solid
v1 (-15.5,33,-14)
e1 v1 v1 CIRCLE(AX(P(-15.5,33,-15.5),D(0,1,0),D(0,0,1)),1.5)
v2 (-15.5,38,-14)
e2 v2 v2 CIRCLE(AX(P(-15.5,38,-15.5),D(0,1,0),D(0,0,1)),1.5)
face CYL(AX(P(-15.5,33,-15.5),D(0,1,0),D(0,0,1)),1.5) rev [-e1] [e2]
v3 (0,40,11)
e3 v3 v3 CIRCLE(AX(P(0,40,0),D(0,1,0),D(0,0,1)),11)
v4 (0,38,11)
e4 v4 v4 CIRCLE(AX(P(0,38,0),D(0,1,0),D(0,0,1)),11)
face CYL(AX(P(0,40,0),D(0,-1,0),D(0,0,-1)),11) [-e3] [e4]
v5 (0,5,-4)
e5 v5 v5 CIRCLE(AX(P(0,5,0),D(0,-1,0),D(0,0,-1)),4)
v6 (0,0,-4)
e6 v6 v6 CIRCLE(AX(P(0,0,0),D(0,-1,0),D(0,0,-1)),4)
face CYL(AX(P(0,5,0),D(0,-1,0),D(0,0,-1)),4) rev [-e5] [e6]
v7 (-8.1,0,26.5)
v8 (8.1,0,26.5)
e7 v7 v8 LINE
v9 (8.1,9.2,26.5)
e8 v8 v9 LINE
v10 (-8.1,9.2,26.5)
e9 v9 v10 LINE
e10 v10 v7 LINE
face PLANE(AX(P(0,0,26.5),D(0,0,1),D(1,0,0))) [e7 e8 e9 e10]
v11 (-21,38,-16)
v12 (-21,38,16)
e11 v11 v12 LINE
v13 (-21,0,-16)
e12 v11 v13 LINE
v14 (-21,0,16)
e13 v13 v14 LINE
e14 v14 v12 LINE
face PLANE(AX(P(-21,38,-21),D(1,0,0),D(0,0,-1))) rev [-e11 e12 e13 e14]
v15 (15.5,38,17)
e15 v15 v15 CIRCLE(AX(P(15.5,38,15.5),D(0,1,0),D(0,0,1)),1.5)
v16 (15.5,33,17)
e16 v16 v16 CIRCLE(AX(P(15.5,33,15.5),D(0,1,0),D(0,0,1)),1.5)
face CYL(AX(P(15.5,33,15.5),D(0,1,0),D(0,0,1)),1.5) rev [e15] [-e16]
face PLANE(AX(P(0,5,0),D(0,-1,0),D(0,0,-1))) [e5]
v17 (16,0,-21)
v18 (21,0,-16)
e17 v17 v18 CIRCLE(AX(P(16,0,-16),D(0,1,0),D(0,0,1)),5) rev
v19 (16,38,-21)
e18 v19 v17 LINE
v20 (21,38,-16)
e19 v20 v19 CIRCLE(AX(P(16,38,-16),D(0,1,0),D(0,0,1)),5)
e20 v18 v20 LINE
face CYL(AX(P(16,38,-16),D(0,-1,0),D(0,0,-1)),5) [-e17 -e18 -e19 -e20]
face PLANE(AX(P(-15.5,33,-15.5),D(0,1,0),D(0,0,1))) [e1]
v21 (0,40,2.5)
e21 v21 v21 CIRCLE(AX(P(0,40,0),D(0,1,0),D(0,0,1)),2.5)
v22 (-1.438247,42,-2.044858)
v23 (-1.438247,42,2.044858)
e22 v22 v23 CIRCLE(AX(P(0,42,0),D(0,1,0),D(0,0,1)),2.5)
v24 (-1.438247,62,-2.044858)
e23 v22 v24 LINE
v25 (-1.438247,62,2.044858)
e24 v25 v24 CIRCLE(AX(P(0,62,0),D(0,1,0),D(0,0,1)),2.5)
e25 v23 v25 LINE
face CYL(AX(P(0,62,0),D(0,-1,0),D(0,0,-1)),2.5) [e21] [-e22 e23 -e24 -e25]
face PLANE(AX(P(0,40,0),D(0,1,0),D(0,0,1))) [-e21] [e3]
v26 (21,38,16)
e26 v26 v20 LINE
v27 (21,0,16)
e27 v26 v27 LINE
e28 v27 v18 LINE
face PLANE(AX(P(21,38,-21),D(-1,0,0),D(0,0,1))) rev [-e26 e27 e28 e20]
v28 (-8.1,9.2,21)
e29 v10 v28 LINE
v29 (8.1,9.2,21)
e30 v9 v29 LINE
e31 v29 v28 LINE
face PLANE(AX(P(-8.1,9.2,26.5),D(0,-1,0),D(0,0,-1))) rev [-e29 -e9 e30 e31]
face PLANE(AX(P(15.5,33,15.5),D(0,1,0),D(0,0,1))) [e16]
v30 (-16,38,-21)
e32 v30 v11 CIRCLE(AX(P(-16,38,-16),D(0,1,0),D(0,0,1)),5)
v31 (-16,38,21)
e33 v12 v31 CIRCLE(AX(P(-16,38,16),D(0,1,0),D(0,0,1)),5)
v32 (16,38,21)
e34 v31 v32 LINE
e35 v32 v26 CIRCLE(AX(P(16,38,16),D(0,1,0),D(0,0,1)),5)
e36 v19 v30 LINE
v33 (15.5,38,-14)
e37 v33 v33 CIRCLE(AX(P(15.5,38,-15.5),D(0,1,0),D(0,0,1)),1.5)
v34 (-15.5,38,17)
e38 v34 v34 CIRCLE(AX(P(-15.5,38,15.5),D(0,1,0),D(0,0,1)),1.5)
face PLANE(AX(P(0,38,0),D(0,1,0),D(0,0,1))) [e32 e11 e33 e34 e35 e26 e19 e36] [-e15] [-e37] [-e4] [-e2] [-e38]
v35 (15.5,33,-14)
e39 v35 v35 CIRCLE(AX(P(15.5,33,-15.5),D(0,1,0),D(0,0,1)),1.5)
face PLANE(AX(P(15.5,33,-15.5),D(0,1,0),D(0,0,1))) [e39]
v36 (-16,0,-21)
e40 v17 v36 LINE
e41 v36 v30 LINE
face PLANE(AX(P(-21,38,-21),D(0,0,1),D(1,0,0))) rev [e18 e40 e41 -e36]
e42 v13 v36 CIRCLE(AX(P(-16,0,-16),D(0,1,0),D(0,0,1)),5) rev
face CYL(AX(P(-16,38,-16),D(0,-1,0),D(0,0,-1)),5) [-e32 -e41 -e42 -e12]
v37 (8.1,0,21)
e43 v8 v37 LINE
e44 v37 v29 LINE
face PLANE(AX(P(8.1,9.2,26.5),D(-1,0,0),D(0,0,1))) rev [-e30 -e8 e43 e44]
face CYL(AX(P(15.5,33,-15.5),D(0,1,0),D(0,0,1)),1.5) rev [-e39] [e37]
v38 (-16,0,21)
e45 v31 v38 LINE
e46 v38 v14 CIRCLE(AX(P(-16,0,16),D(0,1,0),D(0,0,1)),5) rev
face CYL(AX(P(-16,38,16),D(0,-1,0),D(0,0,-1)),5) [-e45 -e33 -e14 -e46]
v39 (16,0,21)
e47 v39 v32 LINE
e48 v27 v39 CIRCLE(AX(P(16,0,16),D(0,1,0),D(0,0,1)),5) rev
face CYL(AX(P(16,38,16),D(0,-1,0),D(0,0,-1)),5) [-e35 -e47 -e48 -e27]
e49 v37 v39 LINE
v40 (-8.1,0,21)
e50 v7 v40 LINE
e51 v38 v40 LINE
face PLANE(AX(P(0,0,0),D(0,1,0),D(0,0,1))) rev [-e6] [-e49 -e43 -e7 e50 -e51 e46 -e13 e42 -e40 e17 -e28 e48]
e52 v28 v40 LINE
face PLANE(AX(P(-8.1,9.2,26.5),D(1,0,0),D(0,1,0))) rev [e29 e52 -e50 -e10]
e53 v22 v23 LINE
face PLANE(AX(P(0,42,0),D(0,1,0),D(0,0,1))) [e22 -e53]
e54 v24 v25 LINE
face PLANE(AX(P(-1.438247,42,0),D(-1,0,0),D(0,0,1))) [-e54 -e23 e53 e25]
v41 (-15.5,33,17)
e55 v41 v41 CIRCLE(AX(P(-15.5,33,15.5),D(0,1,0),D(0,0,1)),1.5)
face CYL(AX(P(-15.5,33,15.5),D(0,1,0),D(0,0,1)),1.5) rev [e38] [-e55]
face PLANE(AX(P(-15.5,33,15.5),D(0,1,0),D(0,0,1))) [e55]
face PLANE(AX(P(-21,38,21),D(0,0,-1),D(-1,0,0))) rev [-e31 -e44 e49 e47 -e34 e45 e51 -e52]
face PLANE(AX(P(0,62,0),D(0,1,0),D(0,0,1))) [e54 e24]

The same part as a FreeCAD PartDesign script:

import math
import FreeCAD as App
import Part
import Sketcher
Q = App.Units.Quantity


def edges_at(feature, points):
    """Names of the edges that pass closest to the given points."""
    edges = feature.Shape.Edges
    near = lambda p: min(range(len(edges)), key=lambda i: edges[i].distToShape(Part.Vertex(*p))[0])
    return sorted({f"Edge{near(p) + 1}" for p in points})


def add_polygon(sketch, points):
    """Adds a closed chain of lines whose ends are joined by coincident constraints."""
    first, n = sketch.GeometryCount, len(points)
    for a, b in zip(points, points[1:] + points[:1]):
        sketch.addGeometry(Part.LineSegment(App.Vector(*a, 0), App.Vector(*b, 0)), False)
    for i in range(n):
        sketch.addConstraint(Sketcher.Constraint("Coincident", first + i, 2, first + (i + 1) % n, 1))

doc = App.newDocument("Part")
body = doc.addObject("PartDesign::Body", "Body")

# Sketch on XZ plane
sketch1 = doc.addObject("Sketcher::SketchObject", "Sketch")
body.addObject(sketch1)
sketch1.AttachmentSupport = (doc.XZ_Plane, [""])
sketch1.MapMode = "FlatFace"
add_polygon(sketch1, [(-21, -21), (-21, 21), (21, 21), (21, -21)])  # lines 0-3
sketch1.addConstraint(Sketcher.Constraint("Vertical", 0))
sketch1.addConstraint(Sketcher.Constraint("Horizontal", 1))
sketch1.addConstraint(Sketcher.Constraint("Vertical", 2))
sketch1.addConstraint(Sketcher.Constraint("Horizontal", 3))
sketch1.addConstraint(Sketcher.Constraint("Symmetric", 0, 2, 2, 2, -1, 1))
sketch1.addConstraint(Sketcher.Constraint("Equal", 3, 0))
sketch1.addConstraint(Sketcher.Constraint("DistanceX", 1, 1, 1, 2, Q("42 mm")))
pad1 = doc.addObject("PartDesign::Pad", "Pad")
body.addObject(pad1)
pad1.Profile = sketch1
pad1.Length = 38
pad1.Reversed = True

# Sketch on XZ plane
sketch2 = doc.addObject("Sketcher::SketchObject", "Sketch001")
body.addObject(sketch2)
sketch2.AttachmentSupport = (doc.XZ_Plane, [""])
sketch2.MapMode = "FlatFace"
sketch2.AttachmentOffset = App.Placement(App.Vector(0, 0, -38), App.Rotation())
sketch2.addGeometry(Part.Circle(App.Vector(0, 0, 0), App.Vector(0, 0, 1), 11), False)
sketch2.addConstraint(Sketcher.Constraint("Coincident", 0, 3, -1, 1))
sketch2.addConstraint(Sketcher.Constraint("Diameter", 0, Q("22 mm")))
pad2 = doc.addObject("PartDesign::Pad", "Pad001")
body.addObject(pad2)
pad2.Profile = sketch2
pad2.Length = 2
pad2.Reversed = True

# Sketch on XZ plane
sketch3 = doc.addObject("Sketcher::SketchObject", "Sketch002")
body.addObject(sketch3)
sketch3.AttachmentSupport = (doc.XZ_Plane, [""])
sketch3.MapMode = "FlatFace"
sketch3.AttachmentOffset = App.Placement(App.Vector(0, 0, -40), App.Rotation())
sketch3.addGeometry(Part.Circle(App.Vector(0, 0, 0), App.Vector(0, 0, 1), 2.5), False)
sketch3.addConstraint(Sketcher.Constraint("Coincident", 0, 3, -1, 1))
sketch3.addConstraint(Sketcher.Constraint("Diameter", 0, Q("5 mm")))
pad3 = doc.addObject("PartDesign::Pad", "Pad002")
body.addObject(pad3)
pad3.Profile = sketch3
pad3.Length = 22
pad3.Reversed = True

# Sketch on XY plane
sketch4 = doc.addObject("Sketcher::SketchObject", "Sketch003")
body.addObject(sketch4)
sketch4.AttachmentSupport = (doc.XY_Plane, [""])
sketch4.MapMode = "FlatFace"
sketch4.AttachmentOffset = App.Placement(App.Vector(0, 0, 21), App.Rotation())
add_polygon(sketch4, [(-8, 9), (-8, 0), (8, 0), (8, 9)])  # lines 0-3
sketch4.addConstraint(Sketcher.Constraint("Vertical", 0))
sketch4.addConstraint(Sketcher.Constraint("Horizontal", 1))
sketch4.addConstraint(Sketcher.Constraint("Vertical", 2))
sketch4.addConstraint(Sketcher.Constraint("Horizontal", 3))
sketch4.addConstraint(Sketcher.Constraint("Symmetric", 0, 2, 1, 2, -1, 1))
sketch4.addConstraint(Sketcher.Constraint("DistanceX", 1, 1, 1, 2, Q("16.2 mm")))
sketch4.addConstraint(Sketcher.Constraint("DistanceY", 0, 2, 0, 1, Q("9.2 mm")))
pad4 = doc.addObject("PartDesign::Pad", "Pad003")
body.addObject(pad4)
pad4.Profile = sketch4
pad4.Length = 5.5

# Sketch on XZ plane
sketch5 = doc.addObject("Sketcher::SketchObject", "Sketch004")
body.addObject(sketch5)
sketch5.AttachmentSupport = (doc.XZ_Plane, [""])
sketch5.MapMode = "FlatFace"
sketch5.AttachmentOffset = App.Placement(App.Vector(0, 0, -38), App.Rotation())
sketch5.addGeometry(Part.Circle(App.Vector(-15.5, -15.5, 0), App.Vector(0, 0, 1), 1.5), False)
sketch5.addGeometry(Part.Circle(App.Vector(15.5, -15.5, 0), App.Vector(0, 0, 1), 1.5), False)
sketch5.addGeometry(Part.Circle(App.Vector(15.5, 15.5, 0), App.Vector(0, 0, 1), 1.5), False)
sketch5.addGeometry(Part.Circle(App.Vector(-15.5, 15.5, 0), App.Vector(0, 0, 1), 1.5), False)
sketch5.addConstraint(Sketcher.Constraint("Equal", 0, 1))
sketch5.addConstraint(Sketcher.Constraint("Equal", 1, 2))
sketch5.addConstraint(Sketcher.Constraint("Equal", 2, 3))
sketch5.addConstraint(Sketcher.Constraint("Symmetric", 0, 3, 2, 3, -1, 1))
sketch5.addConstraint(Sketcher.Constraint("Symmetric", 1, 3, 3, 3, -1, 1))
sketch5.addConstraint(Sketcher.Constraint("Symmetric", 0, 3, 1, 3, -2))
sketch5.addConstraint(Sketcher.Constraint("Diameter", 0, Q("3 mm")))
sketch5.addConstraint(Sketcher.Constraint("DistanceX", 0, 3, 1, 3, Q("31 mm")))
sketch5.addConstraint(Sketcher.Constraint("DistanceY", 1, 3, 2, 3, Q("31 mm")))
pocket1 = doc.addObject("PartDesign::Pocket", "Pocket")
body.addObject(pocket1)
pocket1.Profile = sketch5
pocket1.Length = 5
pocket1.Reversed = True
doc.recompute()

fillet = doc.addObject("PartDesign::Fillet", "Fillet")
body.addObject(fillet)
fillet.Base = (pocket1, edges_at(pocket1, [
    (21, 19, 21),
    (-21, 19, 21),
    (-21, 19, -21),
    (21, 19, -21),
]))
fillet.Radius = 5

# Sketch on XZ plane
sketch6 = doc.addObject("Sketcher::SketchObject", "Sketch005")
body.addObject(sketch6)
sketch6.AttachmentSupport = (doc.XZ_Plane, [""])
sketch6.MapMode = "FlatFace"
sketch6.addGeometry(Part.Circle(App.Vector(0, 0, 0), App.Vector(0, 0, 1), 4), False)
sketch6.addConstraint(Sketcher.Constraint("Coincident", 0, 3, -1, 1))
sketch6.addConstraint(Sketcher.Constraint("Diameter", 0, Q("8 mm")))
pocket2 = doc.addObject("PartDesign::Pocket", "Pocket001")
body.addObject(pocket2)
pocket2.Profile = sketch6
pocket2.Length = 5

# Sketch on XZ plane
sketch7 = doc.addObject("Sketcher::SketchObject", "Sketch006")
body.addObject(sketch7)
sketch7.AttachmentSupport = (doc.XZ_Plane, [""])
sketch7.MapMode = "FlatFace"
sketch7.AttachmentOffset = App.Placement(App.Vector(0, 0, -42), App.Rotation())
sketch7.addGeometry(Part.LineSegment(App.Vector(-1.4, 2, 0), App.Vector(-1.4, -2, 0)), False)
sketch7.addGeometry(Part.ArcOfCircle(Part.Circle(App.Vector(0, 0, 0), App.Vector(0, 0, 1), 2.5), math.radians(125), math.radians(235)), False)
sketch7.addConstraint(Sketcher.Constraint("Coincident", 0, 1, 1, 1))
sketch7.addConstraint(Sketcher.Constraint("Coincident", 1, 2, 0, 2))
sketch7.addConstraint(Sketcher.Constraint("Vertical", 0))
sketch7.addConstraint(Sketcher.Constraint("Coincident", 1, 3, -1, 1))
sketch7.addConstraint(Sketcher.Constraint("Radius", 1, Q("2.5 mm")))
sketch7.addConstraint(Sketcher.Constraint("DistanceY", 0, 2, 0, 1, Q("4.089717 mm")))
pocket3 = doc.addObject("PartDesign::Pocket", "Pocket002")
body.addObject(pocket3)
pocket3.Profile = sketch7
pocket3.Length = 20

doc.recompute()
